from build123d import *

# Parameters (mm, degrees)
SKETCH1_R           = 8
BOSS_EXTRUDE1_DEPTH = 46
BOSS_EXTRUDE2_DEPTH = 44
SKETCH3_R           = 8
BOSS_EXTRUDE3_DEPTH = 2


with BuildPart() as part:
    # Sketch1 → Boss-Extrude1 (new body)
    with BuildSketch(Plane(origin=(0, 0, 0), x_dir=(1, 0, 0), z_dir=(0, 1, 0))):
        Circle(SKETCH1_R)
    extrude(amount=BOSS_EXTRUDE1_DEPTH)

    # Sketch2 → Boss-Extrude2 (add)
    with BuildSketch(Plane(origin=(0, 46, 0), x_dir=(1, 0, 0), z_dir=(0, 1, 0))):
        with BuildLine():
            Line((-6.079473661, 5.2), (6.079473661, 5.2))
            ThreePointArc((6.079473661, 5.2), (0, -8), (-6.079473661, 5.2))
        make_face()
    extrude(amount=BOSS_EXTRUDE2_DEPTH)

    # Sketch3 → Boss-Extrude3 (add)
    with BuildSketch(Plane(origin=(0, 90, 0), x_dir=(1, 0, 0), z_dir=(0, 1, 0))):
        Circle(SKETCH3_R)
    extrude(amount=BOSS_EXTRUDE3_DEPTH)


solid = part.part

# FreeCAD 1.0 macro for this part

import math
import FreeCAD as App
import Part
import Sketcher

V = App.Vector
Q = App.Units.Quantity

doc = App.newDocument("Part")
params = doc.addObject("Spreadsheet::Sheet", "Params")
for row, (alias, value) in enumerate([
    ("sketch1_diameter", "16 mm"),
    ("pad1_length", "46 mm"),
    ("sketch2_radius", "8 mm"),
    ("pad2_length", "44 mm"),
    ("sketch3_diameter", "16 mm"),
    ("pad3_length", "2 mm"),
], start=1):
    params.set(f"A{row}", alias)
    params.set(f"B{row}", "=" + value)
    params.setAlias(f"B{row}", alias)

body = doc.addObject("PartDesign::Body", "Body")

sketch1 = body.newObject("Sketcher::SketchObject", "Sketch")
sketch1.AttachmentSupport = (doc.getObject("XZ_Plane"), [""])
sketch1.MapMode = "FlatFace"
sketch1.addGeometry(Part.Circle(V(0, 0, 0), V(0, 0, 1), 8), False)
sketch1.addConstraint([
    Sketcher.Constraint("Coincident", 0, 3, -1, 1),
    Sketcher.Constraint("Diameter", 0, Q("16 mm")),
])
sketch1.setExpression("Constraints[1]", "Params.sketch1_diameter")
pad1 = body.newObject("PartDesign::Pad", "Pad")
pad1.Profile = sketch1
pad1.setExpression("Length", "Params.pad1_length")
pad1.Reversed = True

sketch2 = body.newObject("Sketcher::SketchObject", "Sketch001")
sketch2.AttachmentSupport = (doc.getObject("XZ_Plane"), [""])
sketch2.MapMode = "FlatFace"
sketch2.AttachmentOffset = App.Placement(V(0, 0, -46), App.Rotation())
sketch2.addGeometry([
    Part.LineSegment(V(6.079474, -5.2, 0), V(-6.079474, -5.2, 0)),
    Part.ArcOfCircle(Part.Circle(V(0, 0, 0), V(0, 0, 1), 8), math.radians(-40.541602), math.radians(220.541602)),
], False)
sketch2.addConstraint([
    Sketcher.Constraint("Coincident", 0, 1, 1, 1),
    Sketcher.Constraint("Coincident", 1, 2, 0, 2),
    Sketcher.Constraint("Horizontal", 0),
    Sketcher.Constraint("Coincident", 1, 3, -1, 1),
    Sketcher.Constraint("Radius", 1, Q("8 mm")),
    Sketcher.Constraint("DistanceY", 0, 1, -1, 1, Q("5.2 mm")),
])
sketch2.setExpression("Constraints[4]", "Params.sketch2_radius")
pad2 = body.newObject("PartDesign::Pad", "Pad001")
pad2.Profile = sketch2
pad2.setExpression("Length", "Params.pad2_length")
pad2.Reversed = True

sketch3 = body.newObject("Sketcher::SketchObject", "Sketch002")
sketch3.AttachmentSupport = (doc.getObject("XZ_Plane"), [""])
sketch3.MapMode = "FlatFace"
sketch3.AttachmentOffset = App.Placement(V(0, 0, -90), App.Rotation())
sketch3.addGeometry(Part.Circle(V(0, 0, 0), V(0, 0, 1), 8), False)
sketch3.addConstraint([
    Sketcher.Constraint("Coincident", 0, 3, -1, 1),
    Sketcher.Constraint("Diameter", 0, Q("16 mm")),
])
sketch3.setExpression("Constraints[1]", "Params.sketch3_diameter")
pad3 = body.newObject("PartDesign::Pad", "Pad002")
pad3.Profile = sketch3
pad3.setExpression("Length", "Params.pad3_length")
pad3.Reversed = True

doc.recompute()
